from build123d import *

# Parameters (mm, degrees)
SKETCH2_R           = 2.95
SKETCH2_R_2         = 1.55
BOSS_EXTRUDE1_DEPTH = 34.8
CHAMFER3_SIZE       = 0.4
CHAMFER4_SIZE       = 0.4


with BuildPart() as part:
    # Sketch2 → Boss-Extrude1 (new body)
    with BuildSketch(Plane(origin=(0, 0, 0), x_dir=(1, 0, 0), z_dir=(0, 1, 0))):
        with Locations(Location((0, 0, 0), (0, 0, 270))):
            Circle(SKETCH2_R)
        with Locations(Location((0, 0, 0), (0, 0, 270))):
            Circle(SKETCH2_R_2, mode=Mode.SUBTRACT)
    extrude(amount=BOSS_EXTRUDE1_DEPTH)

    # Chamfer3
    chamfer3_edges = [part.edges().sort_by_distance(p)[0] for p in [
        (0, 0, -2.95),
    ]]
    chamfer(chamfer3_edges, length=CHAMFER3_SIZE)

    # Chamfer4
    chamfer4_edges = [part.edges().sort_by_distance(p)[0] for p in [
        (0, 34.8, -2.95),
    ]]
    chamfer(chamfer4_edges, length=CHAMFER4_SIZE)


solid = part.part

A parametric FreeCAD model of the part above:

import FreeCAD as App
import Part
import Sketcher

V = App.Vector
Q = App.Units.Quantity


def edges_at(feature, points):
    """Names of the edges that pass closest to the given points."""
    edges = feature.Shape.Edges
    near = lambda p: min(range(len(edges)), key=lambda i: edges[i].distToShape(Part.Vertex(*p))[0])
    return sorted({f"Edge{near(p) + 1}" for p in points})

doc = App.newDocument("Part")
body = doc.addObject("PartDesign::Body", "Body")

# Sketch on XZ plane
sketch1 = body.newObject("Sketcher::SketchObject", "Sketch")
sketch1.AttachmentSupport = (doc.getObject("XZ_Plane"), [""])
sketch1.MapMode = "FlatFace"
sketch1.addGeometry(Part.Circle(V(0, 0, 0), V(0, 0, 1), 3), False)
sketch1.addGeometry(Part.Circle(V(0, 0, 0), V(0, 0, 1), 1.6), False)
sketch1.addConstraint(Sketcher.Constraint("Coincident", 0, 3, -1, 1))
sketch1.addConstraint(Sketcher.Constraint("Coincident", 1, 3, -1, 1))
sketch1.addConstraint(Sketcher.Constraint("Diameter", 0, Q("5.9 mm")))
sketch1.addConstraint(Sketcher.Constraint("Diameter", 1, Q("3.1 mm")))
pad1 = body.newObject("PartDesign::Pad", "Pad")
pad1.Profile = sketch1
pad1.Length = 34.8
pad1.Reversed = True
doc.recompute()

chamfer = body.newObject("PartDesign::Chamfer", "Chamfer")
chamfer.Base = (pad1, edges_at(pad1, [(0, 0, -2.95)]))
chamfer.Size = 0.4
doc.recompute()

chamfer2 = body.newObject("PartDesign::Chamfer", "Chamfer001")
chamfer2.Base = (chamfer, edges_at(chamfer, [(0, 34.8, -2.95)]))
chamfer2.Size = 0.4

doc.recompute()
